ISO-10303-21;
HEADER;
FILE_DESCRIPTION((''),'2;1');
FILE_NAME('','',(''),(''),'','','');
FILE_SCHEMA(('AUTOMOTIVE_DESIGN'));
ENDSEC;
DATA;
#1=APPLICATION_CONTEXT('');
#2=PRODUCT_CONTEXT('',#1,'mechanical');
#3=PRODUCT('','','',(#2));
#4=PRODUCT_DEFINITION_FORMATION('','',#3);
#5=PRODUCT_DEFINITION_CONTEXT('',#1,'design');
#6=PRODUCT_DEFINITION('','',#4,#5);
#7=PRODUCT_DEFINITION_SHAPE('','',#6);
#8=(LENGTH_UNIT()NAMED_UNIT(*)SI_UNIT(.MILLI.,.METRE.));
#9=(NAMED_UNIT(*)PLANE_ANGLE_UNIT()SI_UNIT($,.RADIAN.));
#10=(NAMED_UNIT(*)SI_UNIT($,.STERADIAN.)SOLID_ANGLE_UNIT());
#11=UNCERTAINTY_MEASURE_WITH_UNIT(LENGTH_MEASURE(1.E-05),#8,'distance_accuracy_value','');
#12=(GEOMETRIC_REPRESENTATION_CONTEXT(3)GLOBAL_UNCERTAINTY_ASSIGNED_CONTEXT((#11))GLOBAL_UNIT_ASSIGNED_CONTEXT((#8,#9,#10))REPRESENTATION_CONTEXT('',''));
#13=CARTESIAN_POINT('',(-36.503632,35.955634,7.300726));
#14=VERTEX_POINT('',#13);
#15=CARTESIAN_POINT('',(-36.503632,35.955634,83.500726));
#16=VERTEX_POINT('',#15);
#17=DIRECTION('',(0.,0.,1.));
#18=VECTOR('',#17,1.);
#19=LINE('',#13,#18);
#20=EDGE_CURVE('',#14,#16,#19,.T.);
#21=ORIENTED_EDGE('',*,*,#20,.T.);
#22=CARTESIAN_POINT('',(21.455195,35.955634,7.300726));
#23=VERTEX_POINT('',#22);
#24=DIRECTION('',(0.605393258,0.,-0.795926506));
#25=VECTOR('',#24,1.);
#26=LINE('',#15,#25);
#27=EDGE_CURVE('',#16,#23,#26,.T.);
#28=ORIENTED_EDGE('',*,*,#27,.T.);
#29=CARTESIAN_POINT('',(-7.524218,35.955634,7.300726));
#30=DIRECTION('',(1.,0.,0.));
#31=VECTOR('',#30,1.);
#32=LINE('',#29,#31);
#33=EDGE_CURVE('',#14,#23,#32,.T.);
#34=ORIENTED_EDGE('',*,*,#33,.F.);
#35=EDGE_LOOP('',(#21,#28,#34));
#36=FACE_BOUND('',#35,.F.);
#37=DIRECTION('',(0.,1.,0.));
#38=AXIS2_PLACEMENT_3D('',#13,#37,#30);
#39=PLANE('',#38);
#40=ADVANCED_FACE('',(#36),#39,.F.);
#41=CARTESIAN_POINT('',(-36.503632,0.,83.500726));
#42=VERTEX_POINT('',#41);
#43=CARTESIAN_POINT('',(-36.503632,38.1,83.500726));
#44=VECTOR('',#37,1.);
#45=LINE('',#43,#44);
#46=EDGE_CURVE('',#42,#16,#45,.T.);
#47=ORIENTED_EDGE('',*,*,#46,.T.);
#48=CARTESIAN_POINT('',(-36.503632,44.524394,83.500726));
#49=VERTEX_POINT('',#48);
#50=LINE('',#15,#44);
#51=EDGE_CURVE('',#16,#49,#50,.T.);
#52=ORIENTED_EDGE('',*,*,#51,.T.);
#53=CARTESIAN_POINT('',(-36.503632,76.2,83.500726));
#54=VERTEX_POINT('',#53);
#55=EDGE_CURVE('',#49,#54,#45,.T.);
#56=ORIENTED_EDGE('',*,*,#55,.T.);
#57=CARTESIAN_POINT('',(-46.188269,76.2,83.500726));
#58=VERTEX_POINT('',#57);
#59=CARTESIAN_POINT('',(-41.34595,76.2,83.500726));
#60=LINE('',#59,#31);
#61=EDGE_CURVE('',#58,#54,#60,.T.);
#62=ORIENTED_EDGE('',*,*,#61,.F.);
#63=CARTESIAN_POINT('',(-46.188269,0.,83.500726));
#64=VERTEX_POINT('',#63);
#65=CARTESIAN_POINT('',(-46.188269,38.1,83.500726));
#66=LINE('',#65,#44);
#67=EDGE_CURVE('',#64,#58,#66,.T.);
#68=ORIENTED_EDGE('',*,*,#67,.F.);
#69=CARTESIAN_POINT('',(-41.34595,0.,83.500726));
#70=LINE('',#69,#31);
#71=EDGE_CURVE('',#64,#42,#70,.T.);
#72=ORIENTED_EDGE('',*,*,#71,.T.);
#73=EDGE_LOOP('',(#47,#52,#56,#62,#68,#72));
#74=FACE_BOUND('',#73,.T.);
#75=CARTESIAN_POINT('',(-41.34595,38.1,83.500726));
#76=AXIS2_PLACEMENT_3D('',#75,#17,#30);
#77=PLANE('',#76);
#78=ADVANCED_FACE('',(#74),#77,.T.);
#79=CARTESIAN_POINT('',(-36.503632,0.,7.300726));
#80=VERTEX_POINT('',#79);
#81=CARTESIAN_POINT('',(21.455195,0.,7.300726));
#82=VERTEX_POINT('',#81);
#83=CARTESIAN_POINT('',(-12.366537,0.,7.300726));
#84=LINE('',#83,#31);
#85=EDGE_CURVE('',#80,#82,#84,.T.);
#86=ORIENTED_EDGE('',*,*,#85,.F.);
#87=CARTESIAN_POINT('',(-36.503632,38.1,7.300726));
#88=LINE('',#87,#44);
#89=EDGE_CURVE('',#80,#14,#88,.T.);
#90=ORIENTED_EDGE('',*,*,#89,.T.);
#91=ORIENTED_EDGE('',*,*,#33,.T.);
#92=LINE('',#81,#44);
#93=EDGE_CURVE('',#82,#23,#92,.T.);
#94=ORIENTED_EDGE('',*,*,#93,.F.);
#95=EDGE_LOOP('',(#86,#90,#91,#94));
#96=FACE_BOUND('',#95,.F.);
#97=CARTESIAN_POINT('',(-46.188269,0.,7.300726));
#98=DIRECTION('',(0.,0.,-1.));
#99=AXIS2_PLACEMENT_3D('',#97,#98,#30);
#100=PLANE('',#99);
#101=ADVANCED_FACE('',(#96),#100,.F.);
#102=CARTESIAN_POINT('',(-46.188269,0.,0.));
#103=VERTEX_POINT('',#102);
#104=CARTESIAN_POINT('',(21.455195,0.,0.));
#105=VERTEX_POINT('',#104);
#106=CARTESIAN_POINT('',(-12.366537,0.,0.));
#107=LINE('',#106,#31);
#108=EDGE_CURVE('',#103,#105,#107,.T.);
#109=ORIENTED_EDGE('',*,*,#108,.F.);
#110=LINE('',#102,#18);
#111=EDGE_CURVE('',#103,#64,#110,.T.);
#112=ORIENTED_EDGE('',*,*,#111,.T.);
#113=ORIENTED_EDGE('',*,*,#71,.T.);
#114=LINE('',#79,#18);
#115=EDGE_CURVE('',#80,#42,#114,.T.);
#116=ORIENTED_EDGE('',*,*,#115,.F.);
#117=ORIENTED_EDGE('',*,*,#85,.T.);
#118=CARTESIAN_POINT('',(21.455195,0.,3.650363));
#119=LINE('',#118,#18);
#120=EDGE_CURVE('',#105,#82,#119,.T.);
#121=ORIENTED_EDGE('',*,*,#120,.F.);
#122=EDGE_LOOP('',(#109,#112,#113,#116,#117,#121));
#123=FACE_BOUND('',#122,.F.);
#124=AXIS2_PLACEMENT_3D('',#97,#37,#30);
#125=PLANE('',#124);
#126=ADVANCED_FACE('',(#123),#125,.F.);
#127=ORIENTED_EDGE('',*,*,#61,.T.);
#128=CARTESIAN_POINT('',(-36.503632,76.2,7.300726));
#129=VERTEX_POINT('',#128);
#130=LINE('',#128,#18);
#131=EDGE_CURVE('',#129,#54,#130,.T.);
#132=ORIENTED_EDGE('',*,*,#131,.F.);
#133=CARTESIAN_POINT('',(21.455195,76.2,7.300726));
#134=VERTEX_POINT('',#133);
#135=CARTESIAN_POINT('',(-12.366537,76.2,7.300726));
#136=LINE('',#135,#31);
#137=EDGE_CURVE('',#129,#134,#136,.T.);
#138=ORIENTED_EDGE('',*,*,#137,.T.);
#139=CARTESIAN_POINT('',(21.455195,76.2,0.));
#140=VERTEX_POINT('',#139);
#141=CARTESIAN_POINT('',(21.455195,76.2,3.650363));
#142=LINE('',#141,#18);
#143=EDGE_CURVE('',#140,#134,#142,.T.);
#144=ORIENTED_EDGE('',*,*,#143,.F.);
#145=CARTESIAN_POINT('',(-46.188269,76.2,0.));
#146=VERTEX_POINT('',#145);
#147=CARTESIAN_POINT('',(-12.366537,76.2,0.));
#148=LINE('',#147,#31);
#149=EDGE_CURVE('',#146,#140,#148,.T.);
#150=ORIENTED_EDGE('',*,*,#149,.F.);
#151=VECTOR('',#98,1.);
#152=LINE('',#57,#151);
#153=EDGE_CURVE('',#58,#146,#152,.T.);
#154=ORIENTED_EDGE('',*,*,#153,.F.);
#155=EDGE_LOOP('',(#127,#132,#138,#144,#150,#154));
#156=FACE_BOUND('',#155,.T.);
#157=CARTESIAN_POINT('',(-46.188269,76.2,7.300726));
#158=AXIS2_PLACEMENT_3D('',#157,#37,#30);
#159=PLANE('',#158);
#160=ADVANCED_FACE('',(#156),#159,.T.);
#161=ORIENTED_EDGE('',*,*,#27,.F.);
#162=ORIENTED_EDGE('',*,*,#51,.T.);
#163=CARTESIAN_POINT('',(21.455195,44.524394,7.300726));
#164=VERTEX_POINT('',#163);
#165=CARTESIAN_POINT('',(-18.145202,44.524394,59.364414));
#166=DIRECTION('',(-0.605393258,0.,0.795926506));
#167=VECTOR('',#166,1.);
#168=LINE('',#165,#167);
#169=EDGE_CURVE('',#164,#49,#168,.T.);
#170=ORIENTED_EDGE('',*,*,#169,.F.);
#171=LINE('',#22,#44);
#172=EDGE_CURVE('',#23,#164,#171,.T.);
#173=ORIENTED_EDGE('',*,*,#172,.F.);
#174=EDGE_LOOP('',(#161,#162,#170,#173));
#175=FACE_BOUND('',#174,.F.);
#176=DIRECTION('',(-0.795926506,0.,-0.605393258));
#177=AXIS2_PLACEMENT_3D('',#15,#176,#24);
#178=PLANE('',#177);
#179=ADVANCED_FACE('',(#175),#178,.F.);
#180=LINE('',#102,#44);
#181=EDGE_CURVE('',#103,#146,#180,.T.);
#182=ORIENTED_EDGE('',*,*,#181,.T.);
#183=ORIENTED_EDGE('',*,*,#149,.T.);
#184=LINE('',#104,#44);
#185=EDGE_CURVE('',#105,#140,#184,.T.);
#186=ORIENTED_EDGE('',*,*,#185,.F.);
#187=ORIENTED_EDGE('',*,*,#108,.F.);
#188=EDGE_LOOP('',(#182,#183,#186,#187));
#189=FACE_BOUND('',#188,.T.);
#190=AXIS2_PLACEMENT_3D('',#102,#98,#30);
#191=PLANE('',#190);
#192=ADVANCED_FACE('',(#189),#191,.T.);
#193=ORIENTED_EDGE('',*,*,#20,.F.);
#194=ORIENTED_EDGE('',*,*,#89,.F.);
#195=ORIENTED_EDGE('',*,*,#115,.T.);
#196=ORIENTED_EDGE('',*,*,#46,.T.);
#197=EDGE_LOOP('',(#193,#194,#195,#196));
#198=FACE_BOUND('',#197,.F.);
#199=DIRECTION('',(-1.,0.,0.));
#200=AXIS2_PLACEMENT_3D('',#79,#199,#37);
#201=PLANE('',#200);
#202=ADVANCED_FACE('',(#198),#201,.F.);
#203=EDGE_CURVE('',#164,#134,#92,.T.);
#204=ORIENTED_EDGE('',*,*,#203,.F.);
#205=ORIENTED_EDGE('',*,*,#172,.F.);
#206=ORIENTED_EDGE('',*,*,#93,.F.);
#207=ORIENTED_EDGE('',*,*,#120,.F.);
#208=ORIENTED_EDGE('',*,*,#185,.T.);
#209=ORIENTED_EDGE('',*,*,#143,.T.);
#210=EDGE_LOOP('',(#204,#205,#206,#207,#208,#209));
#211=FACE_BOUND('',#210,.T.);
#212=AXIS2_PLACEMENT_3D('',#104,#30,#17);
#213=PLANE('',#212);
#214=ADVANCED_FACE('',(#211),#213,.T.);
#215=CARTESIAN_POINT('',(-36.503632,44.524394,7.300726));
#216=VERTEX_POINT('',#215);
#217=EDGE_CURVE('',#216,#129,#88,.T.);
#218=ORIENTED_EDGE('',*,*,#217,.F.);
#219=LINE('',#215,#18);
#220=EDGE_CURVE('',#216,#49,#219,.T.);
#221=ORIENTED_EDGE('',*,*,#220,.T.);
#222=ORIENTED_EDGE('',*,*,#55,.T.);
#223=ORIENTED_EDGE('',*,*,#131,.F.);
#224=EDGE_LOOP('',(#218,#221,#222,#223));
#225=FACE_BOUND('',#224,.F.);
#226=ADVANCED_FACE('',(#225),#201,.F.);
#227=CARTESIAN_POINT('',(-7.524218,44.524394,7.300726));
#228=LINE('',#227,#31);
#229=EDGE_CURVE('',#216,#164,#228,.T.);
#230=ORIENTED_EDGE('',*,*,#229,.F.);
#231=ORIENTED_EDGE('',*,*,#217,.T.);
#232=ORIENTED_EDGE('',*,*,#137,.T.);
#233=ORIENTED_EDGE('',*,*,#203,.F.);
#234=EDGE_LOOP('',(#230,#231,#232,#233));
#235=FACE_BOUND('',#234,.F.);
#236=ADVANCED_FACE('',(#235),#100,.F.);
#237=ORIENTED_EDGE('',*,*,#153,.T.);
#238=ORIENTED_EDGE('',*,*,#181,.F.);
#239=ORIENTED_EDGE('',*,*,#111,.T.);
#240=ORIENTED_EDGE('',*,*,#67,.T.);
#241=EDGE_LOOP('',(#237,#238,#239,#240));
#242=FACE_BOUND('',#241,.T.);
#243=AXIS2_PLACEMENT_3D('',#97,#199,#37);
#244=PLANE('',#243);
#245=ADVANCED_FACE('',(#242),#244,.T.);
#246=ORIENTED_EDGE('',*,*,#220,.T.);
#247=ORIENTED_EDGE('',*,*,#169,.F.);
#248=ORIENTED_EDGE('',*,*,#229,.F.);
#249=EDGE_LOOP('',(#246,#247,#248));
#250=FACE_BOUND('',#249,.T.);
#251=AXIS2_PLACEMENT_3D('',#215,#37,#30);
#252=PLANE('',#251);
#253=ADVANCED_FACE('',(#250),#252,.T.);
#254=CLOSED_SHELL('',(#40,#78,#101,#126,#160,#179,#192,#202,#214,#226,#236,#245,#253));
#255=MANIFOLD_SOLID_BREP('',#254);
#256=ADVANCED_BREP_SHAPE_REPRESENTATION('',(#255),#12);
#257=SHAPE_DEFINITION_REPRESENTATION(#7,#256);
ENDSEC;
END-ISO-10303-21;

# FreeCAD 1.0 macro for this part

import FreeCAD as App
import Part
import Sketcher
Q = App.Units.Quantity

doc = App.newDocument("Part")
body = doc.addObject("PartDesign::Body", "Body")

sketch1 = body.newObject("Sketcher::SketchObject", "Sketch")
sketch1.AttachmentSupport = (doc.getObject("XZ_Plane"), [""])
sketch1.MapMode = "FlatFace"
sketch1.addGeometry(Part.LineSegment(App.Vector(-46, 7, 0), App.Vector(-46, 0, 0)), False)
sketch1.addGeometry(Part.LineSegment(App.Vector(-46, 0, 0), App.Vector(21, 0, 0)), False)
sketch1.addGeometry(Part.LineSegment(App.Vector(21, 0, 0), App.Vector(21, 7, 0)), False)
sketch1.addGeometry(Part.LineSegment(App.Vector(21, 7, 0), App.Vector(-46, 7, 0)), False)
sketch1.addConstraint(Sketcher.Constraint("Coincident", 0, 2, 1, 1))
sketch1.addConstraint(Sketcher.Constraint("Coincident", 1, 2, 2, 1))
sketch1.addConstraint(Sketcher.Constraint("Coincident", 2, 2, 3, 1))
sketch1.addConstraint(Sketcher.Constraint("Coincident", 3, 2, 0, 1))
sketch1.addConstraint(Sketcher.Constraint("Vertical", 0))
sketch1.addConstraint(Sketcher.Constraint("Horizontal", 1))
sketch1.addConstraint(Sketcher.Constraint("Vertical", 2))
sketch1.addConstraint(Sketcher.Constraint("Horizontal", 3))
sketch1.addConstraint(Sketcher.Constraint("PointOnObject", 0, 2, -1))
sketch1.addConstraint(Sketcher.Constraint("DistanceX", 1, 1, 1, 2, 67.643464))
sketch1.addConstraint(Sketcher.Constraint("DistanceY", 0, 2, 0, 1, 7.300726))
sketch1.addConstraint(Sketcher.Constraint("DistanceX", 0, 2, -1, 1, 46.188269))
pad1 = body.newObject("PartDesign::Pad", "Pad")
pad1.Profile = sketch1
pad1.Length = Q("3 in")
pad1.Reversed = True

sketch2 = body.newObject("Sketcher::SketchObject", "Sketch001")
sketch2.AttachmentSupport = (doc.getObject("XY_Plane"), [""])
sketch2.MapMode = "FlatFace"
sketch2.AttachmentOffset = App.Placement(App.Vector(0, 0, 7.300726), App.Rotation())
sketch2.addGeometry(Part.LineSegment(App.Vector(-46, 76, 0), App.Vector(-46, 0, 0)), False)
sketch2.addGeometry(Part.LineSegment(App.Vector(-46, 0, 0), App.Vector(-37, 0, 0)), False)
sketch2.addGeometry(Part.LineSegment(App.Vector(-37, 0, 0), App.Vector(-37, 76, 0)), False)
sketch2.addGeometry(Part.LineSegment(App.Vector(-37, 76, 0), App.Vector(-46, 76, 0)), False)
sketch2.addConstraint(Sketcher.Constraint("Coincident", 0, 2, 1, 1))
sketch2.addConstraint(Sketcher.Constraint("Coincident", 1, 2, 2, 1))
sketch2.addConstraint(Sketcher.Constraint("Coincident", 2, 2, 3, 1))
sketch2.addConstraint(Sketcher.Constraint("Coincident", 3, 2, 0, 1))
sketch2.addConstraint(Sketcher.Constraint("Vertical", 0))
sketch2.addConstraint(Sketcher.Constraint("Horizontal", 1))
sketch2.addConstraint(Sketcher.Constraint("Vertical", 2))
sketch2.addConstraint(Sketcher.Constraint("Horizontal", 3))
sketch2.addConstraint(Sketcher.Constraint("PointOnObject", 0, 2, -1))
sketch2.addConstraint(Sketcher.Constraint("DistanceY", 0, 2, 0, 1, Q("3 in")))
sketch2.addConstraint(Sketcher.Constraint("DistanceX", 1, 1, 1, 2, 9.684637))
sketch2.addConstraint(Sketcher.Constraint("DistanceX", 0, 2, -1, 1, 46.188269))
pad2 = body.newObject("PartDesign::Pad", "Pad001")
pad2.Profile = sketch2
pad2.Length = Q("3 in")

sketch3 = body.newObject("Sketcher::SketchObject", "Sketch002")
sketch3.AttachmentSupport = (doc.getObject("XY_Plane"), [""])
sketch3.MapMode = "FlatFace"
sketch3.AttachmentOffset = App.Placement(App.Vector(0, 0, 7.300726), App.Rotation())
sketch3.addGeometry(Part.LineSegment(App.Vector(-37, 45, 0), App.Vector(-37, 36, 0)), False)
sketch3.addGeometry(Part.LineSegment(App.Vector(-37, 36, 0), App.Vector(21, 36, 0)), False)
sketch3.addGeometry(Part.LineSegment(App.Vector(21, 36, 0), App.Vector(21, 45, 0)), False)
sketch3.addGeometry(Part.LineSegment(App.Vector(21, 45, 0), App.Vector(-37, 45, 0)), False)
sketch3.addConstraint(Sketcher.Constraint("Coincident", 0, 2, 1, 1))
sketch3.addConstraint(Sketcher.Constraint("Coincident", 1, 2, 2, 1))
sketch3.addConstraint(Sketcher.Constraint("Coincident", 2, 2, 3, 1))
sketch3.addConstraint(Sketcher.Constraint("Coincident", 3, 2, 0, 1))
sketch3.addConstraint(Sketcher.Constraint("Vertical", 0))
sketch3.addConstraint(Sketcher.Constraint("Horizontal", 1))
sketch3.addConstraint(Sketcher.Constraint("Vertical", 2))
sketch3.addConstraint(Sketcher.Constraint("Horizontal", 3))
sketch3.addConstraint(Sketcher.Constraint("DistanceY", 0, 2, 0, 1, 8.56876))
sketch3.addConstraint(Sketcher.Constraint("DistanceX", 1, 1, 1, 2, 57.958826))
sketch3.addConstraint(Sketcher.Constraint("DistanceX", 0, 2, -1, 1, 36.503632))
sketch3.addConstraint(Sketcher.Constraint("DistanceY", -1, 1, 0, 2, 35.955634))
pad3 = body.newObject("PartDesign::Pad", "Pad002")
pad3.Profile = sketch3
pad3.Length = Q("3 in")

sketch4 = body.newObject("Sketcher::SketchObject", "Sketch003")
sketch4.AttachmentSupport = (doc.getObject("XZ_Plane"), [""])
sketch4.MapMode = "FlatFace"
sketch4.AttachmentOffset = App.Placement(App.Vector(0, 0, -35.955634), App.Rotation())
sketch4.addGeometry(Part.LineSegment(App.Vector(21, 84, 0), App.Vector(-37, 84, 0)), False)
sketch4.addGeometry(Part.LineSegment(App.Vector(-37, 84, 0), App.Vector(21, 7, 0)), False)
sketch4.addGeometry(Part.LineSegment(App.Vector(21, 7, 0), App.Vector(21, 84, 0)), False)
sketch4.addConstraint(Sketcher.Constraint("Coincident", 0, 2, 1, 1))
sketch4.addConstraint(Sketcher.Constraint("Coincident", 1, 2, 2, 1))
sketch4.addConstraint(Sketcher.Constraint("Coincident", 2, 2, 0, 1))
sketch4.addConstraint(Sketcher.Constraint("Horizontal", 0))
sketch4.addConstraint(Sketcher.Constraint("Vertical", 2))
sketch4.addConstraint(Sketcher.Constraint("DistanceY", 2, 1, 2, 2, Q("3 in")))
sketch4.addConstraint(Sketcher.Constraint("DistanceX", 0, 2, 0, 1, 57.958826))
sketch4.addConstraint(Sketcher.Constraint("DistanceX", 0, 2, -1, 1, 36.503632))
sketch4.addConstraint(Sketcher.Constraint("DistanceY", -1, 1, 0, 2, 83.500726))
pocket1 = body.newObject("PartDesign::Pocket", "Pocket")
pocket1.Profile = sketch4
pocket1.Type = "ThroughAll"

doc.recompute()
